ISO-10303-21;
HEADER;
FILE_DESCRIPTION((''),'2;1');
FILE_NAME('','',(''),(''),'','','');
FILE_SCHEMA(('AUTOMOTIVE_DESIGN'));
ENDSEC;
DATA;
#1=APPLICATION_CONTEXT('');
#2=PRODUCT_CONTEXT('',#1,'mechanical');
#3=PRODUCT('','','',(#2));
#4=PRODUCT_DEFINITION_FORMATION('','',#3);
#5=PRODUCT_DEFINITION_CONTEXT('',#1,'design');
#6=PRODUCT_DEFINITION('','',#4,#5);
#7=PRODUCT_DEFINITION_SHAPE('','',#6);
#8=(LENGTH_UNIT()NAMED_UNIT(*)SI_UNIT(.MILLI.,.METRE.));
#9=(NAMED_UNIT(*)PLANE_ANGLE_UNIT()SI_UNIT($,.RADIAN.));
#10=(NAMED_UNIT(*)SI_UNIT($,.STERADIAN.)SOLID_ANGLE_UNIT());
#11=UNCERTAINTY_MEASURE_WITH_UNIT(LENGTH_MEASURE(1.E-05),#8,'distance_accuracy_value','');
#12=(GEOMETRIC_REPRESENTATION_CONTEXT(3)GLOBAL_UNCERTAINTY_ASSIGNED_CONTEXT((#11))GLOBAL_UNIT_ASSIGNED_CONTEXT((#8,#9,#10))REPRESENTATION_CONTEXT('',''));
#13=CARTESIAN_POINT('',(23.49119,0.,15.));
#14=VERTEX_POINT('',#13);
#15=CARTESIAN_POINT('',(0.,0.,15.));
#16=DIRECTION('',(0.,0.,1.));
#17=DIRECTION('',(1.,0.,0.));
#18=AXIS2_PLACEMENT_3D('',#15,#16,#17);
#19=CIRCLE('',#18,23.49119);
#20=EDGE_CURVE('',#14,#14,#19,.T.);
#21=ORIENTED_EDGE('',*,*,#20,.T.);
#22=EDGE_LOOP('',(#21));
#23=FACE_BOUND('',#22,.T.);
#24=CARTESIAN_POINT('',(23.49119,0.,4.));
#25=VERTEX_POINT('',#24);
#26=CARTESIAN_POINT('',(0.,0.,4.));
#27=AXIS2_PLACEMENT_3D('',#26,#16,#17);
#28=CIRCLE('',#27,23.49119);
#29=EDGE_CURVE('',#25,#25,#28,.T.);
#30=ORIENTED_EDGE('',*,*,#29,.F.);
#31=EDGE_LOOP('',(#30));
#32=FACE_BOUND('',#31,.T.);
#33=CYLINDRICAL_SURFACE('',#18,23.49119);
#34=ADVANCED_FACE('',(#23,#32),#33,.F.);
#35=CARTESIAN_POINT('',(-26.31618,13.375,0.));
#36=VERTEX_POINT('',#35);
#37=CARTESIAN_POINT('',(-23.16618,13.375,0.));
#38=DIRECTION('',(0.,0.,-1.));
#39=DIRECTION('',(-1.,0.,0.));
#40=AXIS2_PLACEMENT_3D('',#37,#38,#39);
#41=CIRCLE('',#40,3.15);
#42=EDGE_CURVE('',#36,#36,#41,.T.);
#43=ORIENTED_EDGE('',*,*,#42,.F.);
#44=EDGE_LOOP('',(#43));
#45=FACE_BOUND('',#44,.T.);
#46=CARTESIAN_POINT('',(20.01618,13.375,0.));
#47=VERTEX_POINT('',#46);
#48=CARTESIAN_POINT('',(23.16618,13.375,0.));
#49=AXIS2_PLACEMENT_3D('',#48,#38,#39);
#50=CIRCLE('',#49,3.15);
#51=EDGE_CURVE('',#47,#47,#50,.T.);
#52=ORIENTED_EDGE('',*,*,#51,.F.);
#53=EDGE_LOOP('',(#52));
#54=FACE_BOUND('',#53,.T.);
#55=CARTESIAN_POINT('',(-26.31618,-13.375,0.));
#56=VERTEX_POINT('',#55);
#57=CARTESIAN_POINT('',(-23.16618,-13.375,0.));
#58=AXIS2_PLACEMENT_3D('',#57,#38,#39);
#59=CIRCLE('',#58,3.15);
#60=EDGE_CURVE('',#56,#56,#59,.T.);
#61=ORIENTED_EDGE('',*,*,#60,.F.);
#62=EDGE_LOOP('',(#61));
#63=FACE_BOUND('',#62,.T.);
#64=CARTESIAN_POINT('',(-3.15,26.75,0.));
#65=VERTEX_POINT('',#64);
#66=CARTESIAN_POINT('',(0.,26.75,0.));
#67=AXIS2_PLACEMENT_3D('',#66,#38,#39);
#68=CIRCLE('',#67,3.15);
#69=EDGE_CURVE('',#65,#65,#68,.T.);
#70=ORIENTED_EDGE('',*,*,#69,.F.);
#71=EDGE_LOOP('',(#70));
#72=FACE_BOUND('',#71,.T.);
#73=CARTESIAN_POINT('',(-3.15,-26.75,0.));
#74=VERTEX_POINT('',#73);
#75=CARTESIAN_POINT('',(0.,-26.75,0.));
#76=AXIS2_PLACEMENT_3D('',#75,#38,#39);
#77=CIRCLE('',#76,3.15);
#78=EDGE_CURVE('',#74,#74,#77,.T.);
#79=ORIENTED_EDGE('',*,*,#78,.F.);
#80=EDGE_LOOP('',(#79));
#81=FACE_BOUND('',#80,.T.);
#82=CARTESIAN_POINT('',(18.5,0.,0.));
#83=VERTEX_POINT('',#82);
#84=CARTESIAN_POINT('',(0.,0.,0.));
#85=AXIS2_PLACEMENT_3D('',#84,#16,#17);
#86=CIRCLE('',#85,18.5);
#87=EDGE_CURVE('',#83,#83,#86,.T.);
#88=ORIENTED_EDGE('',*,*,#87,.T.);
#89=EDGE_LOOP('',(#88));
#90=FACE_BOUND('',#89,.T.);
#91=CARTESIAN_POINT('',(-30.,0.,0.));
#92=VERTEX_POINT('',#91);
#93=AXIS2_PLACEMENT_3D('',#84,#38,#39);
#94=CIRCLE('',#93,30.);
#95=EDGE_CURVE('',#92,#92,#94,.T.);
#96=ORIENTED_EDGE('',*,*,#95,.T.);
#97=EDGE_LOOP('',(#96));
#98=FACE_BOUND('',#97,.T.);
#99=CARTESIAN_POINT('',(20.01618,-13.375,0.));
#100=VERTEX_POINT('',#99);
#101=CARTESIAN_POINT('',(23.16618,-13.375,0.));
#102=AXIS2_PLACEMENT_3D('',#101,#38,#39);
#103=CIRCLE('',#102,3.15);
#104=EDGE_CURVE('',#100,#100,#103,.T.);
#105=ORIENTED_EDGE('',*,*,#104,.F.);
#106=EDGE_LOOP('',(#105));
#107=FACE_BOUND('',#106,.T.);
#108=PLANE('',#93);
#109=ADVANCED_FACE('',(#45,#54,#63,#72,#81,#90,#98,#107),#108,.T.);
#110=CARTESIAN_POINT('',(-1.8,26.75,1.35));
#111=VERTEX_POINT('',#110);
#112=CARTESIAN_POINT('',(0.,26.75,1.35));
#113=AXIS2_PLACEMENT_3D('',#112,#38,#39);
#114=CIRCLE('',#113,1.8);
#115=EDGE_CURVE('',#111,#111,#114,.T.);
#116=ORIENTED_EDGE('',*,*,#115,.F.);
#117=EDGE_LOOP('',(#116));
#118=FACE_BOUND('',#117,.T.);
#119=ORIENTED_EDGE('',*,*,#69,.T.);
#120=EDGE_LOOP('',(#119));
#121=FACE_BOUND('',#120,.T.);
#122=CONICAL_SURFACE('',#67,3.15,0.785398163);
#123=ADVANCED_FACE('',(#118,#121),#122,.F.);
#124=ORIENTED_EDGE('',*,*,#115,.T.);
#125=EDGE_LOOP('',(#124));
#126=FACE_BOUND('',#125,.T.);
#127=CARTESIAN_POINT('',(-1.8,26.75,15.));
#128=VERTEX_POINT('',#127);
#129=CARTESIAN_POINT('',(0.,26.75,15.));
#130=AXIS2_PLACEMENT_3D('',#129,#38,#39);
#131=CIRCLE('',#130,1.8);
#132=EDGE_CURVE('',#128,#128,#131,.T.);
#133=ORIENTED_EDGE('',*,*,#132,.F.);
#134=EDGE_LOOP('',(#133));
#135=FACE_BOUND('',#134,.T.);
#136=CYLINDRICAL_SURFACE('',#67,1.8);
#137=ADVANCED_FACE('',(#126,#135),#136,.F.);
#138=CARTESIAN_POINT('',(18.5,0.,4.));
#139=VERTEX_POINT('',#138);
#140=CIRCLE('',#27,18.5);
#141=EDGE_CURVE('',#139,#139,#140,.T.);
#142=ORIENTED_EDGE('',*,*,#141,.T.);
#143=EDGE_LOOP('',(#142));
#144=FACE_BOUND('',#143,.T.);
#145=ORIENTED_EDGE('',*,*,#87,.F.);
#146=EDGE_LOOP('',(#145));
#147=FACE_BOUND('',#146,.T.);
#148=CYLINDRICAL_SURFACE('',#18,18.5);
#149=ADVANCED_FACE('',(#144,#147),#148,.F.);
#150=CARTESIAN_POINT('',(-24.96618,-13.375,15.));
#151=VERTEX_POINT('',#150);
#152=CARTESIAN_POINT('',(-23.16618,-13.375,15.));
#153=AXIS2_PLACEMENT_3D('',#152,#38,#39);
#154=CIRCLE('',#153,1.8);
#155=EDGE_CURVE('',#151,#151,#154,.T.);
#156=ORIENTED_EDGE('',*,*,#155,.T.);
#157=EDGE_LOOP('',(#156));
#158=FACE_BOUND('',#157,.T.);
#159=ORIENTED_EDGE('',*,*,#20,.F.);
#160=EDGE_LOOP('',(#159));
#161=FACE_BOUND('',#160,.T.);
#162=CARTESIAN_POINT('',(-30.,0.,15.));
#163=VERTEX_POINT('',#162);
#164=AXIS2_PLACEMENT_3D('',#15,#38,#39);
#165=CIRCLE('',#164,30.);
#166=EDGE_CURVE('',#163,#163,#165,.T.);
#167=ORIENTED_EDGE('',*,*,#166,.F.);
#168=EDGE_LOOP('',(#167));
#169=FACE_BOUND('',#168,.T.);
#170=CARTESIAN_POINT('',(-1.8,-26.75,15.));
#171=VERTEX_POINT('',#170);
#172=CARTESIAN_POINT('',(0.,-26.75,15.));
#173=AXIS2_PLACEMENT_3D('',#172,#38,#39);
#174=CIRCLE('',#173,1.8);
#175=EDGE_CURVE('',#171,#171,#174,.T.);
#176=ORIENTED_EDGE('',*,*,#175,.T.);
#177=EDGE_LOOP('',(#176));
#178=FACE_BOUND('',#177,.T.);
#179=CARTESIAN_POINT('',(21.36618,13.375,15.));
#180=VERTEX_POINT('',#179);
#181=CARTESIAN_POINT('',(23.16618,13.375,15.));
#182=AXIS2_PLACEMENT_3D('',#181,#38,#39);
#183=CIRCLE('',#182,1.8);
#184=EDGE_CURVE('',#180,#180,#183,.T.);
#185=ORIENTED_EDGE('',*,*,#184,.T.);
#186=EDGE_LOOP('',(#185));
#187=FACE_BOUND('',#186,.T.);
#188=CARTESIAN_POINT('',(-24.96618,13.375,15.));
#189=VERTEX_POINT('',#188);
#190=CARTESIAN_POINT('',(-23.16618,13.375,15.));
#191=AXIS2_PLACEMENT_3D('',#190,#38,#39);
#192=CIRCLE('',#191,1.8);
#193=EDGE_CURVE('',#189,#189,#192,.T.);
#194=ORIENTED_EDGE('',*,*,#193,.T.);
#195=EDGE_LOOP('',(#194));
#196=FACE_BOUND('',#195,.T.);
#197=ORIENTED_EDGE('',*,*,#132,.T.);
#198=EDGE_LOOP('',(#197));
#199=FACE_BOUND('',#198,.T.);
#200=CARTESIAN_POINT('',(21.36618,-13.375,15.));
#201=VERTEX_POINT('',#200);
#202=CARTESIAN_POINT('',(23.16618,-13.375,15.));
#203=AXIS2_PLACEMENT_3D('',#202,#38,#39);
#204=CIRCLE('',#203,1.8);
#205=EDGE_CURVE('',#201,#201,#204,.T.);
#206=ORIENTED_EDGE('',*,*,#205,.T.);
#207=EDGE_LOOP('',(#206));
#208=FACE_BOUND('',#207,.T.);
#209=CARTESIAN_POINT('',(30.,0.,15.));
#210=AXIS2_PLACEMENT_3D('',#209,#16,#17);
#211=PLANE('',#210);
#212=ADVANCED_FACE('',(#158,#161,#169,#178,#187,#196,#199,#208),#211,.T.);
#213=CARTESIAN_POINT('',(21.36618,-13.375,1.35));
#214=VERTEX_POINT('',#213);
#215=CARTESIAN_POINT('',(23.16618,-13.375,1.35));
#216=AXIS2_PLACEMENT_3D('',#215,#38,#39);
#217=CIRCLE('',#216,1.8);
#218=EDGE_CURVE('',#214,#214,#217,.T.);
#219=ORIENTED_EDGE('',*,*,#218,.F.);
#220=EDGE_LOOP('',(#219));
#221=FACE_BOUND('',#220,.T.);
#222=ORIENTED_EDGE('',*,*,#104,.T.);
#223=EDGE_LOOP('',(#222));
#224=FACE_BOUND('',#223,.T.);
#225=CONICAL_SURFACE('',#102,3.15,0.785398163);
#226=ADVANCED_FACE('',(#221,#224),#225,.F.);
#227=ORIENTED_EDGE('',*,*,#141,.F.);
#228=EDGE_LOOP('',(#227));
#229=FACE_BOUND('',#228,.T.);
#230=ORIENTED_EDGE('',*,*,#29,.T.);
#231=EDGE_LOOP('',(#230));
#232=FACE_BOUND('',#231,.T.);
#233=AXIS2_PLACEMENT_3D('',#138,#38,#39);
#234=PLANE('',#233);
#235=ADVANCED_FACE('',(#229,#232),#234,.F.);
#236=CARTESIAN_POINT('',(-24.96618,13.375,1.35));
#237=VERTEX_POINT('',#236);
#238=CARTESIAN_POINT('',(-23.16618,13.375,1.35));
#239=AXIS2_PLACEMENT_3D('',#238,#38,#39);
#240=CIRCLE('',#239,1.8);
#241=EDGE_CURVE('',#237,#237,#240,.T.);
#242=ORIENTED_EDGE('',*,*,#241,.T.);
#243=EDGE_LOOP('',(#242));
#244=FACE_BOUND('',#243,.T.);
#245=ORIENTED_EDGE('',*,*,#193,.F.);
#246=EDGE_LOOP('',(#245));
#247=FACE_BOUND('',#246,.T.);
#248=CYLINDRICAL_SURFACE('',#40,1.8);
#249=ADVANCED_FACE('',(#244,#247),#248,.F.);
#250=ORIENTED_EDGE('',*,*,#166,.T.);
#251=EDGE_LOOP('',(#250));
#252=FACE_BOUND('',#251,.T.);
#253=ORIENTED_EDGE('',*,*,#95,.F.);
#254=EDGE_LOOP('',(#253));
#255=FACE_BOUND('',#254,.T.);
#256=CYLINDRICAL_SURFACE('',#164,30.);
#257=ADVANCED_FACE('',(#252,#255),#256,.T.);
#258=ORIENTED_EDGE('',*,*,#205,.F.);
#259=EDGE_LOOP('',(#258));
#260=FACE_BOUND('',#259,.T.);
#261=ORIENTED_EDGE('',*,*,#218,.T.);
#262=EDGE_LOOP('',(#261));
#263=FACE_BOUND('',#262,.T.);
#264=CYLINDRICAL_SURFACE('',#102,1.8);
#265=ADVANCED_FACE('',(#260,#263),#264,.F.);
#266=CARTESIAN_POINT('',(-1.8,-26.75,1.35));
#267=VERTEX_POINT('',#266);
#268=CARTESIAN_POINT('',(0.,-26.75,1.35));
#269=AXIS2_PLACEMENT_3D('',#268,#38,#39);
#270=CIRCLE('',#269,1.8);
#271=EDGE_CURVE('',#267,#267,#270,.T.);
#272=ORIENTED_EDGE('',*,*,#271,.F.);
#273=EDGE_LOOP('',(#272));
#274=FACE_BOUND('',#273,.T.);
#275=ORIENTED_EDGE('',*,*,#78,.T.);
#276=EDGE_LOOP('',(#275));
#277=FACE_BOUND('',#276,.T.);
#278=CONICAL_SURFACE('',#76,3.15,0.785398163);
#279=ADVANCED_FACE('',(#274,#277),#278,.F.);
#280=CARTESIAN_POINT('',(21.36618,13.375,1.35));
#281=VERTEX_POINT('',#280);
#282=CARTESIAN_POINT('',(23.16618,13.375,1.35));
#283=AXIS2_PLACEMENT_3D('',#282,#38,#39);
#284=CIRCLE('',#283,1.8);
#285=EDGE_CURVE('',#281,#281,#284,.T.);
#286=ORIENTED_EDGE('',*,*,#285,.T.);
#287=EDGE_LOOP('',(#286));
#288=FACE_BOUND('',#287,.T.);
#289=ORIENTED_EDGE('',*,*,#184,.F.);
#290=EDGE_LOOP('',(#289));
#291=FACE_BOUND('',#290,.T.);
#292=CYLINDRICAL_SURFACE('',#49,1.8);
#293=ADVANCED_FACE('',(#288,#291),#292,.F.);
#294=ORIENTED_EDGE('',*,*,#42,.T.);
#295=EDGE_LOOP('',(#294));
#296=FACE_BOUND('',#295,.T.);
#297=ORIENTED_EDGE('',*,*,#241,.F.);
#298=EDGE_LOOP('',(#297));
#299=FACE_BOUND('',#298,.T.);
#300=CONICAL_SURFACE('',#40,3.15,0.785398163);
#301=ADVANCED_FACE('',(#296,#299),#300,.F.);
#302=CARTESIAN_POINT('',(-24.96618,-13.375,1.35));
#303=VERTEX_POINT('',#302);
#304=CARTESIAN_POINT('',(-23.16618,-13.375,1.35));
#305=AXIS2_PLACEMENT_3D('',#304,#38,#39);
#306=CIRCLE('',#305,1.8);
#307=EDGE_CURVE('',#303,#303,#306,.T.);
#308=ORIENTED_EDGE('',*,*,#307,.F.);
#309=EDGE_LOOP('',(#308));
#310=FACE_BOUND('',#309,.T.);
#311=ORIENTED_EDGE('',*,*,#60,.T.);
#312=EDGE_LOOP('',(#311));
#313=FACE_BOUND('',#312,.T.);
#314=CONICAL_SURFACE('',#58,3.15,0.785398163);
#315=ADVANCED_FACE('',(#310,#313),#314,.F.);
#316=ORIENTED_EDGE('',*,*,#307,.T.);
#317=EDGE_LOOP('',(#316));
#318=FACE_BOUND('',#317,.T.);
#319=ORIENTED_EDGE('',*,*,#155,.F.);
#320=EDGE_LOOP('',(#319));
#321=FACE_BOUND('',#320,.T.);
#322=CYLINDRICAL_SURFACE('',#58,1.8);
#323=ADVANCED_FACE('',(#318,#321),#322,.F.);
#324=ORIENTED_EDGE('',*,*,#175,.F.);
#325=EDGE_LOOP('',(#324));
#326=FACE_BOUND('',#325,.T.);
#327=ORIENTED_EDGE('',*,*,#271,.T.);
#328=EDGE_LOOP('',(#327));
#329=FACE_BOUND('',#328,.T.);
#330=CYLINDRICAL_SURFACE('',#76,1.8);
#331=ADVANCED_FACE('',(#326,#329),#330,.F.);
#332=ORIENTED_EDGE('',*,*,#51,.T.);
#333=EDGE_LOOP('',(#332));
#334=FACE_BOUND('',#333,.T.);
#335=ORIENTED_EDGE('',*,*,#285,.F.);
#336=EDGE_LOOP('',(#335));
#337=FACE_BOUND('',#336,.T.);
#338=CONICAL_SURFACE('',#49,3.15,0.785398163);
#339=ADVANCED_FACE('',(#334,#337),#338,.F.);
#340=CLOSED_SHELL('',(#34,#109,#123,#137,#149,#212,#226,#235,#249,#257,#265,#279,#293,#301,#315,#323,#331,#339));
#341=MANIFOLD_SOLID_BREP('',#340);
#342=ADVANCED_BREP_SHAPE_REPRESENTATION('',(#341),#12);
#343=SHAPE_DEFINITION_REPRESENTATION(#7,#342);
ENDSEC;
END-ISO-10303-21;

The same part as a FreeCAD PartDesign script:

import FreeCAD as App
import Part
import Sketcher
Q = App.Units.Quantity

doc = App.newDocument("Part")
body = doc.addObject("PartDesign::Body", "Body")

# Sketch on XZ plane
sketch1 = body.newObject("Sketcher::SketchObject", "Sketch")
sketch1.AttachmentSupport = (doc.getObject("XZ_Plane"), [""])
sketch1.MapMode = "FlatFace"
sketch1.addGeometry(Part.LineSegment(App.Vector(0, 15, 0), App.Vector(0, 0, 0)), False)
sketch1.addGeometry(Part.LineSegment(App.Vector(0, 0, 0), App.Vector(30, 0, 0)), False)
sketch1.addGeometry(Part.LineSegment(App.Vector(30, 0, 0), App.Vector(30, 15, 0)), False)
sketch1.addGeometry(Part.LineSegment(App.Vector(30, 15, 0), App.Vector(0, 15, 0)), False)
sketch1.addConstraint(Sketcher.Constraint("Coincident", 0, 2, 1, 1))
sketch1.addConstraint(Sketcher.Constraint("Coincident", 1, 2, 2, 1))
sketch1.addConstraint(Sketcher.Constraint("Coincident", 2, 2, 3, 1))
sketch1.addConstraint(Sketcher.Constraint("Coincident", 3, 2, 0, 1))
sketch1.addConstraint(Sketcher.Constraint("Vertical", 0))
sketch1.addConstraint(Sketcher.Constraint("Horizontal", 1))
sketch1.addConstraint(Sketcher.Constraint("Vertical", 2))
sketch1.addConstraint(Sketcher.Constraint("Horizontal", 3))
sketch1.addConstraint(Sketcher.Constraint("Coincident", 0, 2, -1, 1))
sketch1.addConstraint(Sketcher.Constraint("DistanceX", 1, 1, 1, 2, Q("30 mm")))
sketch1.addConstraint(Sketcher.Constraint("DistanceY", 0, 2, 0, 1, Q("15 mm")))
revolution = body.newObject("PartDesign::Revolution", "Revolution")
revolution.Profile = sketch1
revolution.ReferenceAxis = (sketch1, ["V_Axis"])
revolution.Angle = 360

# Sketch on XY plane
sketch2 = body.newObject("Sketcher::SketchObject", "Sketch001")
sketch2.AttachmentSupport = (doc.getObject("XY_Plane"), [""])
sketch2.MapMode = "FlatFace"
sketch2.addGeometry(Part.Circle(App.Vector(-23.16618, -13.375, 0), App.Vector(0, 0, 1), 1.8), False)
sketch2.addGeometry(Part.Circle(App.Vector(-23.16618, 13.375, 0), App.Vector(0, 0, 1), 1.8), False)
sketch2.addGeometry(Part.Circle(App.Vector(0, -26.75, 0), App.Vector(0, 0, 1), 1.8), False)
sketch2.addGeometry(Part.Circle(App.Vector(23.16618, 13.375, 0), App.Vector(0, 0, 1), 1.8), False)
sketch2.addGeometry(Part.Circle(App.Vector(23.16618, -13.375, 0), App.Vector(0, 0, 1), 1.8), False)
sketch2.addGeometry(Part.Circle(App.Vector(0, 26.75, 0), App.Vector(0, 0, 1), 1.8), False)
sketch2.addConstraint(Sketcher.Constraint("Equal", 0, 1))
sketch2.addConstraint(Sketcher.Constraint("Equal", 1, 2))
sketch2.addConstraint(Sketcher.Constraint("Equal", 2, 3))
sketch2.addConstraint(Sketcher.Constraint("Equal", 3, 4))
sketch2.addConstraint(Sketcher.Constraint("Equal", 4, 5))
sketch2.addConstraint(Sketcher.Constraint("Symmetric", 0, 3, 3, 3, -1, 1))
sketch2.addConstraint(Sketcher.Constraint("Symmetric", 1, 3, 4, 3, -1, 1))
sketch2.addConstraint(Sketcher.Constraint("Symmetric", 2, 3, 5, 3, -1, 1))
sketch2.addConstraint(Sketcher.Constraint("Symmetric", 1, 3, 3, 3, -2))
sketch2.addConstraint(Sketcher.Constraint("PointOnObject", 2, 3, -2))
sketch2.addConstraint(Sketcher.Constraint("Diameter", 0, Q("3.6 mm")))
sketch2.addConstraint(Sketcher.Constraint("DistanceY", 2, 3, 5, 3, Q("53.5 mm")))
sketch2.addConstraint(Sketcher.Constraint("DistanceY", 0, 3, 1, 3, Q("26.75 mm")))
sketch2.addConstraint(Sketcher.Constraint("DistanceX", 0, 3, -1, 1, Q("23.16618 mm")))
doc.recompute()
hole = body.newObject("PartDesign::Hole", "Hole")
hole.Profile = sketch2
hole.ThreadType = "None"
hole.Diameter = 3.6
hole.DepthType = "ThroughAll"
hole.HoleCutType = "Countersink"
hole.HoleCutDiameter = 6.3
hole.HoleCutCountersinkAngle = 90
hole.Reversed = True

# Sketch on XY plane
sketch3 = body.newObject("Sketcher::SketchObject", "Sketch002")
sketch3.AttachmentSupport = (doc.getObject("XY_Plane"), [""])
sketch3.MapMode = "FlatFace"
sketch3.AttachmentOffset = App.Placement(App.Vector(0, 0, 15), App.Rotation())
sketch3.addGeometry(Part.Circle(App.Vector(0, 0, 0), App.Vector(0, 0, 1), 18.5), False)
sketch3.addConstraint(Sketcher.Constraint("Coincident", 0, 3, -1, 1))
sketch3.addConstraint(Sketcher.Constraint("Diameter", 0, Q("37 mm")))
doc.recompute()
hole2 = body.newObject("PartDesign::Hole", "Hole001")
hole2.Profile = sketch3
hole2.ThreadType = "None"
hole2.Diameter = 37
hole2.DepthType = "ThroughAll"
hole2.HoleCutType = "Counterbore"
hole2.HoleCutDiameter = 46.98238
hole2.HoleCutDepth = 11

doc.recompute()
